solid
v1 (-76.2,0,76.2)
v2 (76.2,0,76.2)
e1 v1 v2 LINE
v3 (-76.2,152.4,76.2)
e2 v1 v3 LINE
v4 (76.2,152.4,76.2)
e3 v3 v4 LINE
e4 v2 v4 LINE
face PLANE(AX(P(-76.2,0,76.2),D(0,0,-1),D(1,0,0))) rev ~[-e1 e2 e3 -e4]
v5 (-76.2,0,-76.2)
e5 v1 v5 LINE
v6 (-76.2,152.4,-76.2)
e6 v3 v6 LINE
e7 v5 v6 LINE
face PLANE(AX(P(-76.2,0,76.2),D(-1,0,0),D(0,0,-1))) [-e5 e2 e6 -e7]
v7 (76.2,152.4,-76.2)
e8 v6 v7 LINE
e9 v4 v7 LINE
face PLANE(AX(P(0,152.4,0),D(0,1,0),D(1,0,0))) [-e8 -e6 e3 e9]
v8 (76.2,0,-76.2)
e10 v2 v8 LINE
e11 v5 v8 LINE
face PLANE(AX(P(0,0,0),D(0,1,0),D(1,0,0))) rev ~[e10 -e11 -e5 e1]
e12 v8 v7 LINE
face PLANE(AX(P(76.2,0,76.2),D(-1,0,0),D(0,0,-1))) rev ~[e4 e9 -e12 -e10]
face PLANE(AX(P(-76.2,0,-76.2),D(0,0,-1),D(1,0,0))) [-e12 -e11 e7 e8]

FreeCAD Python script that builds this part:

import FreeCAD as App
import Part
import Sketcher
from FreeCAD import Vector
Q = App.Units.Quantity


def add_polygon(sketch, points):
    """Adds a closed chain of lines whose ends are joined by coincident constraints."""
    first, n = sketch.GeometryCount, len(points)
    for a, b in zip(points, points[1:] + points[:1]):
        sketch.addGeometry(Part.LineSegment(App.Vector(*a, 0), App.Vector(*b, 0)), False)
    for i in range(n):
        sketch.addConstraint(Sketcher.Constraint("Coincident", first + i, 2, first + (i + 1) % n, 1))

doc = App.newDocument("Part")
body = doc.addObject("PartDesign::Body", "Body")

# Sketch on XZ plane
sketch1 = body.newObject("Sketcher::SketchObject", "Sketch")
sketch1.AttachmentSupport = (doc.getObject("XZ_Plane"), [""])
sketch1.MapMode = "FlatFace"
add_polygon(sketch1, [(-76, -76), (-76, 76), (76, 76), (76, -76)])  # lines 0-3
sketch1.addConstraint([
    Sketcher.Constraint("Vertical", 0),
    Sketcher.Constraint("Horizontal", 1),
    Sketcher.Constraint("Vertical", 2),
    Sketcher.Constraint("Horizontal", 3),
    Sketcher.Constraint("Symmetric", 0, 2, 2, 2, -1, 1),
    Sketcher.Constraint("Equal", 3, 0),
    Sketcher.Constraint("DistanceX", 1, 1, 1, 2, Q("6 in")),
])
pad1 = body.newObject("PartDesign::Pad", "Pad")
pad1.Profile = sketch1
pad1.Length = Q("6 in")
pad1.Reversed = True

doc.recompute()
